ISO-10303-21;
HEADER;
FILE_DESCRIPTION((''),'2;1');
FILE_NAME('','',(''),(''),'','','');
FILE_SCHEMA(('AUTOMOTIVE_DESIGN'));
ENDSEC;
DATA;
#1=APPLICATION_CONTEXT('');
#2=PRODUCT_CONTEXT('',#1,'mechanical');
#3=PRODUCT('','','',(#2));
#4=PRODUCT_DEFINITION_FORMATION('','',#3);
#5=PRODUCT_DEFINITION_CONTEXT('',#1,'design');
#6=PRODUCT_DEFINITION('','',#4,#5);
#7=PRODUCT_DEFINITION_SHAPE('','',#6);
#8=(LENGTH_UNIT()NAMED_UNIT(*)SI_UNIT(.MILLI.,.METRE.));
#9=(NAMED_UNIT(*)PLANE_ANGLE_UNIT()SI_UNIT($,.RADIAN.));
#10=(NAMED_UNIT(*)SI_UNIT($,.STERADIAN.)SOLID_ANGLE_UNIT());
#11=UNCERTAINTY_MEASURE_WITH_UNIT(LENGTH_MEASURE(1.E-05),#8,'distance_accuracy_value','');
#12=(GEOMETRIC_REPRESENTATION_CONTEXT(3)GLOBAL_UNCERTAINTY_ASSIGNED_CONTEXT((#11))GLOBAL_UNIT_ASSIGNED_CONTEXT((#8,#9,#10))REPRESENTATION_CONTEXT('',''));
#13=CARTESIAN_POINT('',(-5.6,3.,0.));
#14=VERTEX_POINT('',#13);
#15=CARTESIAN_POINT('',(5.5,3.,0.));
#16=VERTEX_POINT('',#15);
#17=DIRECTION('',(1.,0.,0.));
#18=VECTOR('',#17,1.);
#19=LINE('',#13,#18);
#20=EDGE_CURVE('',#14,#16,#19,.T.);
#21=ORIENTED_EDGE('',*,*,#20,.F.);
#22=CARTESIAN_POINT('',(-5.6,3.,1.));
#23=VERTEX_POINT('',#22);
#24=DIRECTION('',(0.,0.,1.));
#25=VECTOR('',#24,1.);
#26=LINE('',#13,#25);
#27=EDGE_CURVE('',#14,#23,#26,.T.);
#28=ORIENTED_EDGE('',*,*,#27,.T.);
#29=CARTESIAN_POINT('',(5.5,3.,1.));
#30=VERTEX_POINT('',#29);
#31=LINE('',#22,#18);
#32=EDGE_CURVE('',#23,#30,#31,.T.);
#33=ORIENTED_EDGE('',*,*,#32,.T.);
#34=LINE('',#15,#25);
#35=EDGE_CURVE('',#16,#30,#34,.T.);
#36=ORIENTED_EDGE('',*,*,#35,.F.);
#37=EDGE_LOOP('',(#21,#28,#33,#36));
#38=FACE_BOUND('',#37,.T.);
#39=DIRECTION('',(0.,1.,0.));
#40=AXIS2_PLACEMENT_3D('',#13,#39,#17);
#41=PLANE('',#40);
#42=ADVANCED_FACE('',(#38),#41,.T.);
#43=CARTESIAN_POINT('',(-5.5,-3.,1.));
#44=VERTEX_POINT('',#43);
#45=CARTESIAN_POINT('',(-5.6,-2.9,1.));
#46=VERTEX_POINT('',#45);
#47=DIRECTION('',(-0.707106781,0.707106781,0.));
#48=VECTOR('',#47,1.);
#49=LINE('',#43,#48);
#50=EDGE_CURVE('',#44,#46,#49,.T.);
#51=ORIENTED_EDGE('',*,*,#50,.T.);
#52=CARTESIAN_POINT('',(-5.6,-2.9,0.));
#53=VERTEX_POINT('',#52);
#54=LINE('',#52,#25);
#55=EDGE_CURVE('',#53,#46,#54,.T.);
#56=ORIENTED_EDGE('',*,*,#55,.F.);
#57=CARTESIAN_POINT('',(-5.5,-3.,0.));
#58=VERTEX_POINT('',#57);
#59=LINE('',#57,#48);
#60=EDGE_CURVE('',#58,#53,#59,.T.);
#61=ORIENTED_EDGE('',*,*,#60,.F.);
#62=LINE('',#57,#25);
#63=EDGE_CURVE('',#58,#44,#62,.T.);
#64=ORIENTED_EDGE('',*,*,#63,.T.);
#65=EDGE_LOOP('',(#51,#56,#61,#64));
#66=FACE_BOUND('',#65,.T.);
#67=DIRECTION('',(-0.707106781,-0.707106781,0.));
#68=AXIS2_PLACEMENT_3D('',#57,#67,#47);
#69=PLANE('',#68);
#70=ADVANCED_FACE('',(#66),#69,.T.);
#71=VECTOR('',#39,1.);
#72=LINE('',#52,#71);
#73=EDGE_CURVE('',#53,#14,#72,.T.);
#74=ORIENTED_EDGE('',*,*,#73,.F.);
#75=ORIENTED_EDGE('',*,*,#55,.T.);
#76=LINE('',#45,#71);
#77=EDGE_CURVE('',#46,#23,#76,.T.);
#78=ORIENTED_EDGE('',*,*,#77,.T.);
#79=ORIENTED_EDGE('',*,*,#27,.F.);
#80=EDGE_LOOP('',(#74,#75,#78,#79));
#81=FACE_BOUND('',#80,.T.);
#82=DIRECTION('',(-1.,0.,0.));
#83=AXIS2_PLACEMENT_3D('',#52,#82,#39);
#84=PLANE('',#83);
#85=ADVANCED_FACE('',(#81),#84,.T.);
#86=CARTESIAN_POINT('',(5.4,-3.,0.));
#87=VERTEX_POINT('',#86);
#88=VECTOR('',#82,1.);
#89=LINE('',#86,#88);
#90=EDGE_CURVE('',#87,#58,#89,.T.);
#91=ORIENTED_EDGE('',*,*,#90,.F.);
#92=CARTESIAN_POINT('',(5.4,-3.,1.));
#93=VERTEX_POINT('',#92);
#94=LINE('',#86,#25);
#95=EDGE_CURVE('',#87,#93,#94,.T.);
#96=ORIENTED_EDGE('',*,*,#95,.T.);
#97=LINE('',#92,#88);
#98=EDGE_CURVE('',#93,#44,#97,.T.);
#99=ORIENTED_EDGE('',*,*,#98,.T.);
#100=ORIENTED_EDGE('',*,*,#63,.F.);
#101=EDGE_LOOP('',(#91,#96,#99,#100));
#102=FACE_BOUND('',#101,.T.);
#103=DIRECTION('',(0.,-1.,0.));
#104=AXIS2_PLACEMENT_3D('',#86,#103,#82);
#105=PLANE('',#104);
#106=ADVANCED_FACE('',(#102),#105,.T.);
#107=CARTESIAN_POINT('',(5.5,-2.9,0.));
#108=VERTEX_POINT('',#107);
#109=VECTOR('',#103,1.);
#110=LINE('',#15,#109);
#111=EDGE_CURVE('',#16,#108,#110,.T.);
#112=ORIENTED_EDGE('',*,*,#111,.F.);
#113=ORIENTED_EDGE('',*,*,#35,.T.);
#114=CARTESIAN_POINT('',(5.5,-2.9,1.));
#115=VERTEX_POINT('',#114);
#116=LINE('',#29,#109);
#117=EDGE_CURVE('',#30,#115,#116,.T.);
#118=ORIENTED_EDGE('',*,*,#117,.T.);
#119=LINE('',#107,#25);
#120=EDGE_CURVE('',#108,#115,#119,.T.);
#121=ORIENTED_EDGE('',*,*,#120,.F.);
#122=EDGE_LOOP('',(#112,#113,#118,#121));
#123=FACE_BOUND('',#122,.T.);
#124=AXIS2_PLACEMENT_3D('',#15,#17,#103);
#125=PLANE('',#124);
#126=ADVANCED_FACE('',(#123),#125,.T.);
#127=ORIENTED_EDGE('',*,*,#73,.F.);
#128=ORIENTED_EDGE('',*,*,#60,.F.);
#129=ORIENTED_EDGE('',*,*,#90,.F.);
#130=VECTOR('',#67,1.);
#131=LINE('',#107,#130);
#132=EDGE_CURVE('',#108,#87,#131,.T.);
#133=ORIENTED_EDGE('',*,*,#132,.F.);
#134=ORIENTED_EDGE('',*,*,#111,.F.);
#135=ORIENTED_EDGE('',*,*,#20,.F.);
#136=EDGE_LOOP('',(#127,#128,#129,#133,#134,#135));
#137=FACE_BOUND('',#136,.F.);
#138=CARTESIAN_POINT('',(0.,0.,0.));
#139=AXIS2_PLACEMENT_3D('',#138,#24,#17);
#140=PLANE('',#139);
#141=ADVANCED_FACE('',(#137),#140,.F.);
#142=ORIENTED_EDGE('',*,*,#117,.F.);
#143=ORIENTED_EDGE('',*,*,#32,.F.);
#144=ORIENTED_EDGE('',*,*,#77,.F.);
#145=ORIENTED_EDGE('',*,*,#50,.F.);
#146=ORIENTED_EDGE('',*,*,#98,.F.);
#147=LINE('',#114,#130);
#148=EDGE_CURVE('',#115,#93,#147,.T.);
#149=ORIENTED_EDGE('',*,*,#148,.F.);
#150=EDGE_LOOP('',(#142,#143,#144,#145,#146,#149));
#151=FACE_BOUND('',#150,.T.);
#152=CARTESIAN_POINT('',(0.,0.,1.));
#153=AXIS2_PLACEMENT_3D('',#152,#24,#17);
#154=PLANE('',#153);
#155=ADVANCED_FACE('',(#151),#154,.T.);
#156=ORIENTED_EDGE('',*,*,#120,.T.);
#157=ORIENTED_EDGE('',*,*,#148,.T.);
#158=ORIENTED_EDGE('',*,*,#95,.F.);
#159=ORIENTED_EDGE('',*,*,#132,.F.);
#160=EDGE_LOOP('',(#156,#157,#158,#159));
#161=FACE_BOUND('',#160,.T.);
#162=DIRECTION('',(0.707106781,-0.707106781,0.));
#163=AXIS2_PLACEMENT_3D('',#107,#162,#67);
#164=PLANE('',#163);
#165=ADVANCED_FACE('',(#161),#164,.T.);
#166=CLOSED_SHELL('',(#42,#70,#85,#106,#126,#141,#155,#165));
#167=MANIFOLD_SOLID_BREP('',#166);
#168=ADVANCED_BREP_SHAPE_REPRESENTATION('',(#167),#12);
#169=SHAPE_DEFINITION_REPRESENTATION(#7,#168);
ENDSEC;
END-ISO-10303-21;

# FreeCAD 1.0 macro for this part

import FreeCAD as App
import Part
import Sketcher
from FreeCAD import Vector
Q = App.Units.Quantity


def add_polygon(sketch, points):
    """Adds a closed chain of lines whose ends are joined by coincident constraints."""
    first, n = sketch.GeometryCount, len(points)
    for a, b in zip(points, points[1:] + points[:1]):
        sketch.addGeometry(Part.LineSegment(App.Vector(*a, 0), App.Vector(*b, 0)), False)
    for i in range(n):
        sketch.addConstraint(Sketcher.Constraint("Coincident", first + i, 2, first + (i + 1) % n, 1))

doc = App.newDocument("Part")
body = doc.addObject("PartDesign::Body", "Body")

sketch1 = body.newObject("Sketcher::SketchObject", "Sketch")
sketch1.AttachmentSupport = (doc.getObject("XY_Plane"), [""])
sketch1.MapMode = "FlatFace"
add_polygon(sketch1, [(5.5, 3), (-5.6, 3), (-5.6, -2.9), (-5.5, -3), (5.4, -3), (5.5, -2.9)])
sketch1.addConstraint([
    Sketcher.Constraint("Horizontal", 0),
    Sketcher.Constraint("Vertical", 1),
    Sketcher.Constraint("Horizontal", 3),
    Sketcher.Constraint("Vertical", 5),
    Sketcher.Constraint("Symmetric", 2, 2, 5, 2, -1, 1),
    Sketcher.Constraint("Perpendicular", 2, 4),
    Sketcher.Constraint("Horizontal", 1, 2, 4, 2),
    Sketcher.Constraint("Equal", 2, 4),
    Sketcher.Constraint("DistanceX", 0, 2, 0, 1, Q("11.1 mm")),
    Sketcher.Constraint("DistanceX", 3, 1, 3, 2, Q("10.9 mm")),
    Sketcher.Constraint("DistanceY", 1, 2, 1, 1, Q("5.9 mm")),
])
pad1 = body.newObject("PartDesign::Pad", "Pad")
pad1.Profile = sketch1
pad1.Length = 1

doc.recompute()
